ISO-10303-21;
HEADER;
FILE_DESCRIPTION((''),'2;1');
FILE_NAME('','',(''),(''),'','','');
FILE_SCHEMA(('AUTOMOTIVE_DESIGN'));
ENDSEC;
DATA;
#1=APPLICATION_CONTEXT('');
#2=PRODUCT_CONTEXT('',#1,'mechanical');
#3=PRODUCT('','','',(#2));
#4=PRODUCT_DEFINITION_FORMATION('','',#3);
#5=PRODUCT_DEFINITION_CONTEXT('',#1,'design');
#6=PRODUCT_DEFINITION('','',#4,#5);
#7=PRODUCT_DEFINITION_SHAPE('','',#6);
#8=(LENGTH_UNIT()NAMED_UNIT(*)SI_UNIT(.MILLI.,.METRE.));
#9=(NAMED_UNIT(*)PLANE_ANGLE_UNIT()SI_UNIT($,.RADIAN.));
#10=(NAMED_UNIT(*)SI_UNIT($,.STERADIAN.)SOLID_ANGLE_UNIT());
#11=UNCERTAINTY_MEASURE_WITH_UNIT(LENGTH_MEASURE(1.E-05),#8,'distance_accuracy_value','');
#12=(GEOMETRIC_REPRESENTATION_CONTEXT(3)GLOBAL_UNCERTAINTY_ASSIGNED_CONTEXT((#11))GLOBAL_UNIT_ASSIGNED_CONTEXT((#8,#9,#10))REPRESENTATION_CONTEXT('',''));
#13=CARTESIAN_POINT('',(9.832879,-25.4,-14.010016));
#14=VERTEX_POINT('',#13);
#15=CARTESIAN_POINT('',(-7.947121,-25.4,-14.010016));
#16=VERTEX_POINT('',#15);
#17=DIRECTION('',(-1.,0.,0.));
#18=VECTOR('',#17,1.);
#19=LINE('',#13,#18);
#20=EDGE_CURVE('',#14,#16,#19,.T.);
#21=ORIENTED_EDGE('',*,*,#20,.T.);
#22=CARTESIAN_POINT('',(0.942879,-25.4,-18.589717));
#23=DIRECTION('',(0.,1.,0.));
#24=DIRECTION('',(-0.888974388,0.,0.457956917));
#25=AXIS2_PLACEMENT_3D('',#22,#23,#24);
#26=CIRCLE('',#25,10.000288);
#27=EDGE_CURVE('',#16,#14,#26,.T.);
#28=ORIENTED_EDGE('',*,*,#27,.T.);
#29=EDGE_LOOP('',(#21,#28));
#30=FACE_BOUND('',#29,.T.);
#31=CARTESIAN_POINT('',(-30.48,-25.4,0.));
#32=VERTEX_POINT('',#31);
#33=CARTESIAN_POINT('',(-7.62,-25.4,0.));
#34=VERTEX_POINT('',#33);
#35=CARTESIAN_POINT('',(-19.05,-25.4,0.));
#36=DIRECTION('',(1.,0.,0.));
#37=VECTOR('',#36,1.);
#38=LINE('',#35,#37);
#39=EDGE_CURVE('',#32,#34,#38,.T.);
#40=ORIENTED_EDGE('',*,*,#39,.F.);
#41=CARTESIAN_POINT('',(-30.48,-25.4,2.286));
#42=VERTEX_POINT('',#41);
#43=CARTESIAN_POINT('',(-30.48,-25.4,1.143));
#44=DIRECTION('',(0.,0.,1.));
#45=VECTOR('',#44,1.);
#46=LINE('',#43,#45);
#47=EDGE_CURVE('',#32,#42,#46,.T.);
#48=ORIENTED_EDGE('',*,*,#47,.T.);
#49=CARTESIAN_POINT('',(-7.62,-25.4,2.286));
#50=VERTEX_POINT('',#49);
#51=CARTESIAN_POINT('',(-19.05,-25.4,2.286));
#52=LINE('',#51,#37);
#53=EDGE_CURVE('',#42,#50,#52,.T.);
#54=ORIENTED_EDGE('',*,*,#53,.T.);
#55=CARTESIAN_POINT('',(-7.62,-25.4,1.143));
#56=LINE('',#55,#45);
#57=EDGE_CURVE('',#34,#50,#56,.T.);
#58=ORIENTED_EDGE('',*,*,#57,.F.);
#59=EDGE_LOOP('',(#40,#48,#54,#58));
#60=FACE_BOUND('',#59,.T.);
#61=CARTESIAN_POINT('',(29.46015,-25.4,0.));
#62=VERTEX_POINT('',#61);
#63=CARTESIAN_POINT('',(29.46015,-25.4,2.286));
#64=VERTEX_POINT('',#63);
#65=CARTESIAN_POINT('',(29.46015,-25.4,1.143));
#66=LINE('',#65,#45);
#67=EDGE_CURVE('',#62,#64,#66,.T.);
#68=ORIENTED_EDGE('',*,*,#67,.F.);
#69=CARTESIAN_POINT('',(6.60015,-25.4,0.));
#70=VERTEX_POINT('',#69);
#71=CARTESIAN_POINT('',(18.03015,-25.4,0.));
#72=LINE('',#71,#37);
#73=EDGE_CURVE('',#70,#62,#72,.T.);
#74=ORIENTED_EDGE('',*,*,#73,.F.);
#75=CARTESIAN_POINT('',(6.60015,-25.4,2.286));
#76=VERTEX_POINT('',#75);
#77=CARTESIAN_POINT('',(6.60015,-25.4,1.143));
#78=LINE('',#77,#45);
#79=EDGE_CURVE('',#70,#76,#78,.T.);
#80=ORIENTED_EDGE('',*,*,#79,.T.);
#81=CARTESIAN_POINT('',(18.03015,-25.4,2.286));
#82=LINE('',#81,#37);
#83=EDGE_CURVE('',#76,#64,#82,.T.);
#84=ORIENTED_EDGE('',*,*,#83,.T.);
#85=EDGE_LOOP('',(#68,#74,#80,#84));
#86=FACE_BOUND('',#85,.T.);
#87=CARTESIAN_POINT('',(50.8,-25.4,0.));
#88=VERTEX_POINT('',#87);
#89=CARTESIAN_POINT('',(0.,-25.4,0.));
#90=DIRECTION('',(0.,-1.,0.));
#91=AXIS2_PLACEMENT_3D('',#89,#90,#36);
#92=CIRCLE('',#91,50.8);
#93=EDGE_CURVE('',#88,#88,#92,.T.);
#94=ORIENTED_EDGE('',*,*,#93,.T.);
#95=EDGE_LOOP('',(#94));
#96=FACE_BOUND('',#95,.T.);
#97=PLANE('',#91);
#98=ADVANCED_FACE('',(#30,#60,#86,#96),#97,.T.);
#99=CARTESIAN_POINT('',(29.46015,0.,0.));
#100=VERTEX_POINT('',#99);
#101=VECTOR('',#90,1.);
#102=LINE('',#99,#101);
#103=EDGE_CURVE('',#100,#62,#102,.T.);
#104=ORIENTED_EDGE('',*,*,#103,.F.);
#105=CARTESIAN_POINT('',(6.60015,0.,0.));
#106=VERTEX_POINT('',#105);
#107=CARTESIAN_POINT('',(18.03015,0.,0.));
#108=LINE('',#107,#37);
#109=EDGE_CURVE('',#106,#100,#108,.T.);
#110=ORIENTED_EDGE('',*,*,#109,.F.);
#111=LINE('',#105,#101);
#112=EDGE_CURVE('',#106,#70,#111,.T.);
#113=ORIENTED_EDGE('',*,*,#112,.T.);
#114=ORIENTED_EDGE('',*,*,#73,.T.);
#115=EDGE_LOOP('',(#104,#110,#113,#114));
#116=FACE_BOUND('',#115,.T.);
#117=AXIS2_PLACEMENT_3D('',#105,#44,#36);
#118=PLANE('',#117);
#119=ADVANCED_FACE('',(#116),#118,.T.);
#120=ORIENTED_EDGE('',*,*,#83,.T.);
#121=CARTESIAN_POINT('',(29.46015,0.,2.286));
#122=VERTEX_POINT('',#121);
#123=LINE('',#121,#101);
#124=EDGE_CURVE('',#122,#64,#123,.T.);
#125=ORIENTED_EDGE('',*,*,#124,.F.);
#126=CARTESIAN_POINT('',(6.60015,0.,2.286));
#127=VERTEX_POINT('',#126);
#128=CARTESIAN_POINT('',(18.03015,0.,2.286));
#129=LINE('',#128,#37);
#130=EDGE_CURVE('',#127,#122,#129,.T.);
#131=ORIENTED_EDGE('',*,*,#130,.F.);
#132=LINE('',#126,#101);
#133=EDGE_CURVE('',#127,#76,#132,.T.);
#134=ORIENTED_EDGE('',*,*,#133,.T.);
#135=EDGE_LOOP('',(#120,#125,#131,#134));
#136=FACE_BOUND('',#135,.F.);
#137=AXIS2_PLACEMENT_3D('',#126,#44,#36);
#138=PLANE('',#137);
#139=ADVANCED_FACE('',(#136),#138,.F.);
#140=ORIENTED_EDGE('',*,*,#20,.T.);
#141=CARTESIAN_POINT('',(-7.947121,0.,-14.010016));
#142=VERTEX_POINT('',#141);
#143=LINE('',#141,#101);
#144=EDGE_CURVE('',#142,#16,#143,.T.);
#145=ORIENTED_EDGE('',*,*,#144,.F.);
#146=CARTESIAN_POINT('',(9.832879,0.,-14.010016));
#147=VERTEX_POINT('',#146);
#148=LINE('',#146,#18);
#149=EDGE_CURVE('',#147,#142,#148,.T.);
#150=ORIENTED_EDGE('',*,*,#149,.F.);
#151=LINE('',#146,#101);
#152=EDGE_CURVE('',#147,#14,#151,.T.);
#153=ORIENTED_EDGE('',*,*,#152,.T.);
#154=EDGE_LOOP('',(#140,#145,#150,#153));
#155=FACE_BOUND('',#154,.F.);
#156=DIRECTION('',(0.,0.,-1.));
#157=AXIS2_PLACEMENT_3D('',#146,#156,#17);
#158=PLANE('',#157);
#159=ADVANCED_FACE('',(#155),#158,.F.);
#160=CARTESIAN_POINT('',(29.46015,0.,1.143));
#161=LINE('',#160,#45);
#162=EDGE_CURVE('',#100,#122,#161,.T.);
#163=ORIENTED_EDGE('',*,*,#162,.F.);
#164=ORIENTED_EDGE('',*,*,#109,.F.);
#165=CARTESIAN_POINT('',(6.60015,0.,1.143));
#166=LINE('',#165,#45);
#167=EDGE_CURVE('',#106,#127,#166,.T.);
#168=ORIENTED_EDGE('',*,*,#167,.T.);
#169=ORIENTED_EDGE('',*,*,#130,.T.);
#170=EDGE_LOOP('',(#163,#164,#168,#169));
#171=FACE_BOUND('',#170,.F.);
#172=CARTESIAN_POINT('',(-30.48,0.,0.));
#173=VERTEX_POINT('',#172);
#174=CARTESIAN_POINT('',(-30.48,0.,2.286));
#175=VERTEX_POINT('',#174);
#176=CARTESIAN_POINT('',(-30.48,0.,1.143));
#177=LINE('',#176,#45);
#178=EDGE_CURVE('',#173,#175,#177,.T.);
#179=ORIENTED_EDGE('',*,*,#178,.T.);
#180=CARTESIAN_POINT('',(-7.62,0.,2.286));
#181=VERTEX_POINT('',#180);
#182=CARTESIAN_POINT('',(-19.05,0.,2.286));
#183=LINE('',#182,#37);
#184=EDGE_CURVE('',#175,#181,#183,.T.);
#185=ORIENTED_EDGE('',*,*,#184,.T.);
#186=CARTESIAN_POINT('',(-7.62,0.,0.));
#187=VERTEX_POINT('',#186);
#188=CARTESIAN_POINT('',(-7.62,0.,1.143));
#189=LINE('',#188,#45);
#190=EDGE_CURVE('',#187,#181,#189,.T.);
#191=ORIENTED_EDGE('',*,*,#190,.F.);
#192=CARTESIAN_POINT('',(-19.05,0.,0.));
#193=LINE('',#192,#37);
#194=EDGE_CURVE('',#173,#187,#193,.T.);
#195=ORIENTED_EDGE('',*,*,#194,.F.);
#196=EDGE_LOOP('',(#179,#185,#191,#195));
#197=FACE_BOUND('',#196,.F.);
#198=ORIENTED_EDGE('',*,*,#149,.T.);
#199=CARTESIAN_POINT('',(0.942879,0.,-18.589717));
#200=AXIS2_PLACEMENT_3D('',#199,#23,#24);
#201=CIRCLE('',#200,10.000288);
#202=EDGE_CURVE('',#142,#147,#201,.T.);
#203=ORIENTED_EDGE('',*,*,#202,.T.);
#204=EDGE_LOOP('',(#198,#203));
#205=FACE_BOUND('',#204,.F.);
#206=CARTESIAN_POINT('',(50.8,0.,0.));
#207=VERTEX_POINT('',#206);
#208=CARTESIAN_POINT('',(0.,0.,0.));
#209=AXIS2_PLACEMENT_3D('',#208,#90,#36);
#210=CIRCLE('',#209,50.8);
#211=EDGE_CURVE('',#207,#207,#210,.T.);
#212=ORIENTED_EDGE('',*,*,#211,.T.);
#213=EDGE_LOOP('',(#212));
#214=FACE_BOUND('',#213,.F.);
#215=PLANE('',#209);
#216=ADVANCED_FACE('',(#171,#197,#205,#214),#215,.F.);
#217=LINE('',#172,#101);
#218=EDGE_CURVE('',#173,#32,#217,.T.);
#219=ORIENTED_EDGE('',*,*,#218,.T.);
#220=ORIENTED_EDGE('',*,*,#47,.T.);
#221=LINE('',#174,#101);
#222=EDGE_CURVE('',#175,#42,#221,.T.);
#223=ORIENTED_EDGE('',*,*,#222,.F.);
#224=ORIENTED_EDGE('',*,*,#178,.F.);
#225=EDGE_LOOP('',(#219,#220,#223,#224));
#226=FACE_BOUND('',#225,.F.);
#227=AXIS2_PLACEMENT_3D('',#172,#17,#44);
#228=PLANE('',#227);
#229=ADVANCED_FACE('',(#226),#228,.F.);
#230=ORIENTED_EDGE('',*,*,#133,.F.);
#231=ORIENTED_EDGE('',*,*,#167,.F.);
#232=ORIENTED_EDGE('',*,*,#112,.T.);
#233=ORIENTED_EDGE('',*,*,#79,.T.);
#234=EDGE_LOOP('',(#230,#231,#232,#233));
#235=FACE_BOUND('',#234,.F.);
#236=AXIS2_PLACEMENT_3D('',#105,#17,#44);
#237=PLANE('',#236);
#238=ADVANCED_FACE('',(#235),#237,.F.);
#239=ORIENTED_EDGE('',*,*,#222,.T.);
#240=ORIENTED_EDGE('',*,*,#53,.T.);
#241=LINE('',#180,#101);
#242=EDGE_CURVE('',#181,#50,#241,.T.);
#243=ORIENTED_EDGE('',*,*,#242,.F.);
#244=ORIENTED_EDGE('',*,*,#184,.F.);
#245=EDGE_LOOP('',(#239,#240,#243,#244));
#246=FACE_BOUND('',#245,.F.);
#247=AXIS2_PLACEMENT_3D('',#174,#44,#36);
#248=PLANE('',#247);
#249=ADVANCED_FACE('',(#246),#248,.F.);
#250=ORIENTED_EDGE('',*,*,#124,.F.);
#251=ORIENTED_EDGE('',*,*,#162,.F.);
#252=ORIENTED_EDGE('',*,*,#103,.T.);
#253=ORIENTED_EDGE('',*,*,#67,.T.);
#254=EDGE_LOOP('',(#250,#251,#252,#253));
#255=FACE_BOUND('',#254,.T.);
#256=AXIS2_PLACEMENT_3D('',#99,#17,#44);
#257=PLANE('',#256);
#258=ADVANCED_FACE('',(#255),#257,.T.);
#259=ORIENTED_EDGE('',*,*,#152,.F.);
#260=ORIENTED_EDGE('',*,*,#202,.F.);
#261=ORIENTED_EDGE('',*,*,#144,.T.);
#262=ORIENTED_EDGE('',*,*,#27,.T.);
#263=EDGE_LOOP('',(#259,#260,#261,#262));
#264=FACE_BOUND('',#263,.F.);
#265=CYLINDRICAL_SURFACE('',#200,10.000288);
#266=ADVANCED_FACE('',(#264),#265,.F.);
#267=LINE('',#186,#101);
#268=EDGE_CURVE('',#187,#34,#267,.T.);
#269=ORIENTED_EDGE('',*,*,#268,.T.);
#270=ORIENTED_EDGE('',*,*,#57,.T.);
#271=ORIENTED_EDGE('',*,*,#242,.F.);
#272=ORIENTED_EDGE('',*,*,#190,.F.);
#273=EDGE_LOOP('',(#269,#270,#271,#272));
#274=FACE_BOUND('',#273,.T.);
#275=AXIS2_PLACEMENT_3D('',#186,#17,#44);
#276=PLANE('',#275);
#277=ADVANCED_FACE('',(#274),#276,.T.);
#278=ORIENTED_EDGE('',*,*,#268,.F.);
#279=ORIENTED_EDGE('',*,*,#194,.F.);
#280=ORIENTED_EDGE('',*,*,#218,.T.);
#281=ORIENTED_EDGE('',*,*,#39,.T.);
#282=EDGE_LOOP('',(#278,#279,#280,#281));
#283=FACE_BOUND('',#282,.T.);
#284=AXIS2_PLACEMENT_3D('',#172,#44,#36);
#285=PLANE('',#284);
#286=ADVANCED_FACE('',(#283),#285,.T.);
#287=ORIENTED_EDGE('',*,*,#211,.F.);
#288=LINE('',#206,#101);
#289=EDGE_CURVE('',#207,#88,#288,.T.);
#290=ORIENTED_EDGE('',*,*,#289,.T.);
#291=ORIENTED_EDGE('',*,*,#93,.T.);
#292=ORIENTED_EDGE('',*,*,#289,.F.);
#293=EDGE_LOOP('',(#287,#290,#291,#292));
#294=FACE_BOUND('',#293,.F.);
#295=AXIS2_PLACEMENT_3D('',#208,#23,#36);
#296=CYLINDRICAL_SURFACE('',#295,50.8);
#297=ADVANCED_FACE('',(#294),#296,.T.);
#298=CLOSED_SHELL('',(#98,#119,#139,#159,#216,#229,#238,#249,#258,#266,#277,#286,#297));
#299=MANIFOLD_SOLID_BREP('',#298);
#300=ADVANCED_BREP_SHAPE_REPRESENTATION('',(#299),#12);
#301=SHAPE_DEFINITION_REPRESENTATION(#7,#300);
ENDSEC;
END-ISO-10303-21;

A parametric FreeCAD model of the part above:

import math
import FreeCAD as App
import Part
import Sketcher

V = App.Vector
Q = App.Units.Quantity


def add_polygon(sketch, points):
    """Adds a closed chain of lines whose ends are joined by coincident constraints."""
    first, n = sketch.GeometryCount, len(points)
    for a, b in zip(points, points[1:] + points[:1]):
        sketch.addGeometry(Part.LineSegment(App.Vector(*a, 0), App.Vector(*b, 0)), False)
    for i in range(n):
        sketch.addConstraint(Sketcher.Constraint("Coincident", first + i, 2, first + (i + 1) % n, 1))

doc = App.newDocument("Part")
body = doc.addObject("PartDesign::Body", "Body")

# Sketch on XZ plane
sketch1 = body.newObject("Sketcher::SketchObject", "Sketch")
sketch1.AttachmentSupport = (doc.getObject("XZ_Plane"), [""])
sketch1.MapMode = "FlatFace"
sketch1.addGeometry(Part.Circle(V(0, 0, 0), V(0, 0, 1), 50.8), False)  # 0
sketch1.addGeometry(Part.ArcOfCircle(Part.Circle(V(0.9, -18.6, 0), V(0, 0, 1), 10), math.radians(27), math.radians(153)), False)  # 1
sketch1.addGeometry(Part.LineSegment(V(9.8, -14, 0), V(-7.9, -14, 0)), False)  # 2
add_polygon(sketch1, [(-7.6, 0), (-30.5, 0), (-30.5, 2.3), (-7.6, 2.3)])  # lines 3-6
add_polygon(sketch1, [(29.5, 0), (6.6, 0), (6.6, 2.3), (29.5, 2.3)])  # lines 7-10
sketch1.addConstraint(Sketcher.Constraint("Coincident", 1, 1, 2, 1))
sketch1.addConstraint(Sketcher.Constraint("Coincident", 2, 2, 1, 2))
sketch1.addConstraint(Sketcher.Constraint("Horizontal", 2))
sketch1.addConstraint(Sketcher.Constraint("Horizontal", 3))
sketch1.addConstraint(Sketcher.Constraint("Vertical", 4))
sketch1.addConstraint(Sketcher.Constraint("Horizontal", 5))
sketch1.addConstraint(Sketcher.Constraint("Vertical", 6))
sketch1.addConstraint(Sketcher.Constraint("Horizontal", 7))
sketch1.addConstraint(Sketcher.Constraint("Vertical", 8))
sketch1.addConstraint(Sketcher.Constraint("Horizontal", 9))
sketch1.addConstraint(Sketcher.Constraint("Vertical", 10))
sketch1.addConstraint(Sketcher.Constraint("Coincident", 0, 3, -1, 1))
sketch1.addConstraint(Sketcher.Constraint("PointOnObject", 3, 2, -1))
sketch1.addConstraint(Sketcher.Constraint("PointOnObject", 7, 2, -1))
sketch1.addConstraint(Sketcher.Constraint("Horizontal", 5, 2, 8, 2))
sketch1.addConstraint(Sketcher.Constraint("Equal", 5, 7))
sketch1.addConstraint(Sketcher.Constraint("Diameter", 0, Q("4 in")))
sketch1.addConstraint(Sketcher.Constraint("DistanceX", 2, 2, 2, 1, Q("0.7 in")))
sketch1.addConstraint(Sketcher.Constraint("DistanceX", 3, 2, 3, 1, Q("0.9 in")))
sketch1.addConstraint(Sketcher.Constraint("DistanceY", 4, 1, 4, 2, Q("0.09 in")))
sketch1.addConstraint(Sketcher.Constraint("DistanceX", 3, 2, -1, 1, Q("1.2 in")))
sketch1.addConstraint(Sketcher.Constraint("Radius", 1, Q("10.000288 mm")))
sketch1.addConstraint(Sketcher.Constraint("DistanceX", -1, 1, 1, 3, Q("0.942879 mm")))
sketch1.addConstraint(Sketcher.Constraint("DistanceX", -1, 1, 7, 2, Q("6.60015 mm")))
sketch1.addConstraint(Sketcher.Constraint("DistanceY", 1, 3, -1, 1, Q("18.589717 mm")))
pad1 = body.newObject("PartDesign::Pad", "Pad")
pad1.Profile = sketch1
pad1.Length = Q("1 in")

doc.recompute()
